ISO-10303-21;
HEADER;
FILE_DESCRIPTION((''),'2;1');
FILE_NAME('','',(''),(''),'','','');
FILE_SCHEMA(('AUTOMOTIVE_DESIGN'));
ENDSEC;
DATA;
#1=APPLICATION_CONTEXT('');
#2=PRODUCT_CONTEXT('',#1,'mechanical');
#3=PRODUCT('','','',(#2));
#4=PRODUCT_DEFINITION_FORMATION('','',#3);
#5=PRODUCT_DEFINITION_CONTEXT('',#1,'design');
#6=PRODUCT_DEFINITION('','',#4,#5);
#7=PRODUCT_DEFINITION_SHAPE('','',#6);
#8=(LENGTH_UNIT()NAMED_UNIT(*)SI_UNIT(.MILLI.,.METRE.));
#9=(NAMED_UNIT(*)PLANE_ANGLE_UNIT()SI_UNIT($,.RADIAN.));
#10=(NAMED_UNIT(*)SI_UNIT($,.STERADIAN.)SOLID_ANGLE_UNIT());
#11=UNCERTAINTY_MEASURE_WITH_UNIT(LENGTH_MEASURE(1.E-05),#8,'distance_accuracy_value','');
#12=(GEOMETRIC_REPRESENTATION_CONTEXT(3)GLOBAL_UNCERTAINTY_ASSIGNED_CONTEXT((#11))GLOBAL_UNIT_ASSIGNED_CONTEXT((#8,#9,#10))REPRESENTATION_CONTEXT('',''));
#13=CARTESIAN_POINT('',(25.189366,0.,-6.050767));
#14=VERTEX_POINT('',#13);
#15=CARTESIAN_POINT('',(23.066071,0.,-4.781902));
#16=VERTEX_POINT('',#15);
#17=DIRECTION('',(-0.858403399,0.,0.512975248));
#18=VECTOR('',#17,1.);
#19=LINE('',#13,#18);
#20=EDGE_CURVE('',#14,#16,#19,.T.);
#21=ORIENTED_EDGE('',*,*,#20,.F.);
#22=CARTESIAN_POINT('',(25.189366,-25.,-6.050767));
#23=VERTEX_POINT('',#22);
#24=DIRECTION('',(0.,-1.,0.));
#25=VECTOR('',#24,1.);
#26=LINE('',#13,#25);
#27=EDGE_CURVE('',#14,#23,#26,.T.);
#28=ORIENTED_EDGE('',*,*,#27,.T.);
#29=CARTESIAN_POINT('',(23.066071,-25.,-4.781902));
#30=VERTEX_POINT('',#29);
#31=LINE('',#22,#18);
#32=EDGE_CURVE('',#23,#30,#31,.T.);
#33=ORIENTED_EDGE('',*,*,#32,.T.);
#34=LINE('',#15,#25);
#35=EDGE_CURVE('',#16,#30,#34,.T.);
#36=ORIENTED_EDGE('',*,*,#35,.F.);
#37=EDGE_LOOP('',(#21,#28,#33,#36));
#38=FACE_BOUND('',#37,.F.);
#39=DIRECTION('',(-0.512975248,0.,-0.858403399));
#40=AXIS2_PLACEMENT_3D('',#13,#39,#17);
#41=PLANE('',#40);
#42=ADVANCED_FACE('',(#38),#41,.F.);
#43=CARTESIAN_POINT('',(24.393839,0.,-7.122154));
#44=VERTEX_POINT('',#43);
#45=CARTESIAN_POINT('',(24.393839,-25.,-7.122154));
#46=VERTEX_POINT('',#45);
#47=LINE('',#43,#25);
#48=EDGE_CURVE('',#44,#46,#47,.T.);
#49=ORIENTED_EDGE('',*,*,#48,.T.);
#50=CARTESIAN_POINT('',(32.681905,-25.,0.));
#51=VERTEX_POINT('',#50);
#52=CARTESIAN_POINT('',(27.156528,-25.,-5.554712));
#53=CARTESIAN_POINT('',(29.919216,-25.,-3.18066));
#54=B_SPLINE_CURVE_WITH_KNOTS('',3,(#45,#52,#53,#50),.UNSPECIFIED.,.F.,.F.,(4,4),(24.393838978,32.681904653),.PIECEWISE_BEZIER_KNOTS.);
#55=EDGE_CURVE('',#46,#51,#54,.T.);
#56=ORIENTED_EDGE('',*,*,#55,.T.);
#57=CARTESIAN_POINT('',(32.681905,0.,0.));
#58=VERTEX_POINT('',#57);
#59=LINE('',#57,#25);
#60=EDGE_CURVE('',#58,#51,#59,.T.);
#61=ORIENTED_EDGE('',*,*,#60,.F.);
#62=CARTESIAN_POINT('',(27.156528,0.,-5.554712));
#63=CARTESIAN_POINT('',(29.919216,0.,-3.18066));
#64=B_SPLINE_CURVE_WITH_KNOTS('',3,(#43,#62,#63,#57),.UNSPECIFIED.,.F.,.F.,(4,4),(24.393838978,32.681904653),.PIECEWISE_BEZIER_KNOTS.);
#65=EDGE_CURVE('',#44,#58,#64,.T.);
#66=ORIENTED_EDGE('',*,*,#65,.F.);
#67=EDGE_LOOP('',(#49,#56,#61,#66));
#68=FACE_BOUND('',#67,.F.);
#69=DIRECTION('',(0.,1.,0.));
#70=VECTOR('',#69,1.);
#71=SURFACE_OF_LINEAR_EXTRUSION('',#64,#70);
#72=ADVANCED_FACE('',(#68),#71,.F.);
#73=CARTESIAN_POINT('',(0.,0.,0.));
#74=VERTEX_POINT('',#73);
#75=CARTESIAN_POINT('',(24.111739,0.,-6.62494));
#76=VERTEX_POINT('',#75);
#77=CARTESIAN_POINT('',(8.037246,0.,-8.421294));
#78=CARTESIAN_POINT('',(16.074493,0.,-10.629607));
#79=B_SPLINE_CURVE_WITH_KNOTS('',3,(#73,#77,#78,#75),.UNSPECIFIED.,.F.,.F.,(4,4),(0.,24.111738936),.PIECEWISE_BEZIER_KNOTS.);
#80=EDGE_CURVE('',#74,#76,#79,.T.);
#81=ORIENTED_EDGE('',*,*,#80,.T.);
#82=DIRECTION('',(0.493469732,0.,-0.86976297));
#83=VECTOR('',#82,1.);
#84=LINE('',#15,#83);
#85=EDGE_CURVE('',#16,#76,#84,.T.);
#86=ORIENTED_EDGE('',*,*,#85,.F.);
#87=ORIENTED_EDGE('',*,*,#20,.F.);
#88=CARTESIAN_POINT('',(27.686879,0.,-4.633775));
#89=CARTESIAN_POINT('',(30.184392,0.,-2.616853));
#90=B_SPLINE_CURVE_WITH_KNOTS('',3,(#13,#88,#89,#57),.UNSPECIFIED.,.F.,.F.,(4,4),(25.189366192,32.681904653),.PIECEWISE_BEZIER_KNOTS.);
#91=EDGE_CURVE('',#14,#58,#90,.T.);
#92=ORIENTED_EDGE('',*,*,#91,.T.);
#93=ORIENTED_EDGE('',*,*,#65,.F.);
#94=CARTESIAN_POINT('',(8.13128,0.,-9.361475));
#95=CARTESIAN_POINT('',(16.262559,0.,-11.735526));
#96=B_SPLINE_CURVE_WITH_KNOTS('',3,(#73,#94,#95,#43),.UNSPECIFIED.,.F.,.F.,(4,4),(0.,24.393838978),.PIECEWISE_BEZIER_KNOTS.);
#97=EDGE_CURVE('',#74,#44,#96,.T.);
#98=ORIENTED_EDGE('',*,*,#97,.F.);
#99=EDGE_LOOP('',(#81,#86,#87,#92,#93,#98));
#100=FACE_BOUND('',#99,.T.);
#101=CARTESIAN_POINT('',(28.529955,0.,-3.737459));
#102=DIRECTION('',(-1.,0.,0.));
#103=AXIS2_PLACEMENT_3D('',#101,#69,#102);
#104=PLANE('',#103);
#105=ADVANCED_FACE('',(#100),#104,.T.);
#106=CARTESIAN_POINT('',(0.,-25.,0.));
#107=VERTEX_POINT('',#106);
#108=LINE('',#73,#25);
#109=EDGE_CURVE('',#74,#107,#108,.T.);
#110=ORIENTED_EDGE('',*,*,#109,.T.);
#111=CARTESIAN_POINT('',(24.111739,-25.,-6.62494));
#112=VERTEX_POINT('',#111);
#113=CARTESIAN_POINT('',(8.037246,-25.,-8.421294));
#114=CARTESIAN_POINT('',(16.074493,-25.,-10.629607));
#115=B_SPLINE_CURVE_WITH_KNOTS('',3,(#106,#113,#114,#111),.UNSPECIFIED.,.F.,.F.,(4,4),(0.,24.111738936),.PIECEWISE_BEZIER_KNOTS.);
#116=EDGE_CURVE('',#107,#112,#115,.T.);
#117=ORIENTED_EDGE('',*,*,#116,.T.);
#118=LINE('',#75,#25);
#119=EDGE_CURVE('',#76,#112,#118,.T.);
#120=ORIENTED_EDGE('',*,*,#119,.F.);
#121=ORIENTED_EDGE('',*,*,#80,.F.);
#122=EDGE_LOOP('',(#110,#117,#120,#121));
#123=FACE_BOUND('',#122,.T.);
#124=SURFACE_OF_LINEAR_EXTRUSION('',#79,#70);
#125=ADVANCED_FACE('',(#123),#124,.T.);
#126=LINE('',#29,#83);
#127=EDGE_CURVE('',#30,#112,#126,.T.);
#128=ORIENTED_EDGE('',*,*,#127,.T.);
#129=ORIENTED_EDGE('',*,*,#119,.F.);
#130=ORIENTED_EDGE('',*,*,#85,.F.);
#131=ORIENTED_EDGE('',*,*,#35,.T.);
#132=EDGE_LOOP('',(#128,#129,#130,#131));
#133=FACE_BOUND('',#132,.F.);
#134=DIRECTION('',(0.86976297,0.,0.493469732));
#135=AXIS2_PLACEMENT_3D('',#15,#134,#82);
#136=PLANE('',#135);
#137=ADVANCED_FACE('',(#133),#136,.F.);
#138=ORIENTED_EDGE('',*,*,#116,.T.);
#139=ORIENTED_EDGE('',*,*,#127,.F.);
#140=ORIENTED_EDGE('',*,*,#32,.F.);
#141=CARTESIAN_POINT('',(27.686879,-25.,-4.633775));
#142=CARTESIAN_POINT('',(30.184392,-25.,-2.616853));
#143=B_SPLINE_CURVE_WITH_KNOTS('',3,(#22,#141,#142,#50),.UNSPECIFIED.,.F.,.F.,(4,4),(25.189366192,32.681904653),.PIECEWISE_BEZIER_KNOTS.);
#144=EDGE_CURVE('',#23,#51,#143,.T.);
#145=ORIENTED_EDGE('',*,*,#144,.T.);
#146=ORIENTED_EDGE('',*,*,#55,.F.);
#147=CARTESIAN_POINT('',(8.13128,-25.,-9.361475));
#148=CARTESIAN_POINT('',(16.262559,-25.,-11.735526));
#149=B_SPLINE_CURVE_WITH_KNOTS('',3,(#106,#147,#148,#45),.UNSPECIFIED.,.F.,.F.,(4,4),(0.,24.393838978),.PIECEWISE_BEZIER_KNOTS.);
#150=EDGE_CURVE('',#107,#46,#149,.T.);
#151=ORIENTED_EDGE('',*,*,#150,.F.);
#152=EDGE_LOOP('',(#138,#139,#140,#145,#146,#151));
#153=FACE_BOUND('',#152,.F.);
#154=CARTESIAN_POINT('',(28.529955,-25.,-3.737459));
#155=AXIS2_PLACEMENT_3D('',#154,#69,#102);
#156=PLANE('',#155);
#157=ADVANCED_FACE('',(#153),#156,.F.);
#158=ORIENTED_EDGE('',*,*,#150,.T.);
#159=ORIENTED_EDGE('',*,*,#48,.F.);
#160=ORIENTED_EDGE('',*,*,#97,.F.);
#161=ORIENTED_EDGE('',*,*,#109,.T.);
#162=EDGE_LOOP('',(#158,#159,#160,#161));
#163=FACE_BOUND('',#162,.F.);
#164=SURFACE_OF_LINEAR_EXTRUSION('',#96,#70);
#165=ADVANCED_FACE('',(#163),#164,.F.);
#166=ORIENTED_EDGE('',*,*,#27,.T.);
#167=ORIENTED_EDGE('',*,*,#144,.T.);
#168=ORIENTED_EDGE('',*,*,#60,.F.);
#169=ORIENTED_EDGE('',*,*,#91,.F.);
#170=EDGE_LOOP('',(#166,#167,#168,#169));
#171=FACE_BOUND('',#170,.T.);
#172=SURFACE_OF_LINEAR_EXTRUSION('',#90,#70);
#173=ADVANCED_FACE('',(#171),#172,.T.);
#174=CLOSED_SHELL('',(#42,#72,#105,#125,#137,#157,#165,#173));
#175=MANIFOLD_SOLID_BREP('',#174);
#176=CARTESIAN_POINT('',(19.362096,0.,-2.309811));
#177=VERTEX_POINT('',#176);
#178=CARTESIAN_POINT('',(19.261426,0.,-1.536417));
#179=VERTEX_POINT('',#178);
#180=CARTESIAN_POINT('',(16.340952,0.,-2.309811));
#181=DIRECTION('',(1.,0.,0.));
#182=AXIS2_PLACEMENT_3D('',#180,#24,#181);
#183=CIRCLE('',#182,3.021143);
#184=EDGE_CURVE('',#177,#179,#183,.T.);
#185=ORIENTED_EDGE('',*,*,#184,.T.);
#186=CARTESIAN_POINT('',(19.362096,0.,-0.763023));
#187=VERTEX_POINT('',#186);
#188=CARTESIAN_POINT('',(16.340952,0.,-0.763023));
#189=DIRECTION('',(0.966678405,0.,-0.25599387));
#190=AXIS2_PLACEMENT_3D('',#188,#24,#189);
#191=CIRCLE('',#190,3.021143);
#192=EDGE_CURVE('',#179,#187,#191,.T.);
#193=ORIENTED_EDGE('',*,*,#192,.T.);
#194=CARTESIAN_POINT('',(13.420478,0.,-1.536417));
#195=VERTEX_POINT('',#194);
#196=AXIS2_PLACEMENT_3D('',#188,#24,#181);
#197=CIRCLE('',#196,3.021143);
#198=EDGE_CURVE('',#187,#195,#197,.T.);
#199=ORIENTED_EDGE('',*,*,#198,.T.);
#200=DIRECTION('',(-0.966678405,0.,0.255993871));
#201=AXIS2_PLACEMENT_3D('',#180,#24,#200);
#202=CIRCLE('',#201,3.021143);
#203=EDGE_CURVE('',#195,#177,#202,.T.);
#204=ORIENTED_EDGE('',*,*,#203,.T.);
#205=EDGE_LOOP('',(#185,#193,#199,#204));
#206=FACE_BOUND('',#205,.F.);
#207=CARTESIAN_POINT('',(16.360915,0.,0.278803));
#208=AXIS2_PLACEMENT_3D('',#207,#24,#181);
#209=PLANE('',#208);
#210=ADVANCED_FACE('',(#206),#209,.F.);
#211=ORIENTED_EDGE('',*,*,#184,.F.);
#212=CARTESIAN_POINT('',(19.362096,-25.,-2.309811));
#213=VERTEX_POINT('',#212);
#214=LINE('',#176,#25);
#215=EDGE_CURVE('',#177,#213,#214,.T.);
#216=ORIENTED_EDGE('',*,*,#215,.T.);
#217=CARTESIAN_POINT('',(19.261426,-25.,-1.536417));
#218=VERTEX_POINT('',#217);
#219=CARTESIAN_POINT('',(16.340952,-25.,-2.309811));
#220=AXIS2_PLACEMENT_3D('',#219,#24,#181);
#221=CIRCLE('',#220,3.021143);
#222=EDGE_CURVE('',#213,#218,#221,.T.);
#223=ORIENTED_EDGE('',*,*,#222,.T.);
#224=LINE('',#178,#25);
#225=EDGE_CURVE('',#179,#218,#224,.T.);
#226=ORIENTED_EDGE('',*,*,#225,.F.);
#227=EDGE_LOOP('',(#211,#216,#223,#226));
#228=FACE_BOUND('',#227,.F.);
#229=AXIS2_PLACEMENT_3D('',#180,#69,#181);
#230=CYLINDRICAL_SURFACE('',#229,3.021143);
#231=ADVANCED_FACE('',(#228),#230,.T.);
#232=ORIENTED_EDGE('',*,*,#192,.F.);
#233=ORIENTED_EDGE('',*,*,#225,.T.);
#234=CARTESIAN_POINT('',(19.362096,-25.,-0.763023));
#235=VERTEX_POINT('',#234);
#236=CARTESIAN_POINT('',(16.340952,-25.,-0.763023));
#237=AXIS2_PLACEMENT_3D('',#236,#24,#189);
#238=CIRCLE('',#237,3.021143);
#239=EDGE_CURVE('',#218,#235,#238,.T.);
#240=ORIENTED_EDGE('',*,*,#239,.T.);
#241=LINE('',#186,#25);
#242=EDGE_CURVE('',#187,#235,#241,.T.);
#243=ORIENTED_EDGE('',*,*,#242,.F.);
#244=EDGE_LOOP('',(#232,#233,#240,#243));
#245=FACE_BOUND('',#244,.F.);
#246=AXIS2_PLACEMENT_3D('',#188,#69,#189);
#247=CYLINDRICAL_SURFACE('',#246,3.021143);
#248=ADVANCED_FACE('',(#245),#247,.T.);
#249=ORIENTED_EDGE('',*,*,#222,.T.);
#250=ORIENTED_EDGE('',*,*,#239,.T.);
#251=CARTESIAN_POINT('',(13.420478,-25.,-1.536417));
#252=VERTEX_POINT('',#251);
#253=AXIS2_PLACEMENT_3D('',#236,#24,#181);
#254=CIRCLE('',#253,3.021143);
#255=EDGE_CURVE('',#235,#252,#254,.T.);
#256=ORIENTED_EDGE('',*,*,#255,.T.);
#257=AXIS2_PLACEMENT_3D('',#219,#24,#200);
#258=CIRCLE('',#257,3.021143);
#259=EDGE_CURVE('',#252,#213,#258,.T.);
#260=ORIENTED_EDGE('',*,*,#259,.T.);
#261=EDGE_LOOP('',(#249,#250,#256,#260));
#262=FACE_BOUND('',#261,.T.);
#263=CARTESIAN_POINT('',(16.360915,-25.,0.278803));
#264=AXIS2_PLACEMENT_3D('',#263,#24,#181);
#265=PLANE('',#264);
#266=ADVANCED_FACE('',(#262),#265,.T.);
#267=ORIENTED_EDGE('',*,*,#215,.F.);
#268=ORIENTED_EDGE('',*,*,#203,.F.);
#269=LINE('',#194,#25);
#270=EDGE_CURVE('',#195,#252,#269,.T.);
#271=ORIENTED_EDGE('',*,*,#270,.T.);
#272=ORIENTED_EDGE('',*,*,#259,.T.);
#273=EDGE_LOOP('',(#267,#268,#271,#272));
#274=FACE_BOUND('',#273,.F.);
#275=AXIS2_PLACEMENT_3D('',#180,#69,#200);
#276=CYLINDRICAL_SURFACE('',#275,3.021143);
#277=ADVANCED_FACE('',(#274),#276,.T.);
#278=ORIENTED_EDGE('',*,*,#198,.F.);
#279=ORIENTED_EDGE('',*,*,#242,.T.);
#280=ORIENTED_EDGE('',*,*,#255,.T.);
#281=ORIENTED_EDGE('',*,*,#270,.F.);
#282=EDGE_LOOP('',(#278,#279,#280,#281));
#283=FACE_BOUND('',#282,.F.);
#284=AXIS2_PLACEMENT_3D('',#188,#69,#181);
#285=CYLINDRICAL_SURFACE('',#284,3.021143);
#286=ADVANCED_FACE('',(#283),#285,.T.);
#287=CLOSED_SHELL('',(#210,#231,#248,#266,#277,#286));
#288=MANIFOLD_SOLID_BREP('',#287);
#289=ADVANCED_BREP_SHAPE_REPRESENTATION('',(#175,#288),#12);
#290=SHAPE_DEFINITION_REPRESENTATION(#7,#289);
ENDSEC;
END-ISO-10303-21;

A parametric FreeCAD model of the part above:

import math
import FreeCAD as App
import Part
import Sketcher

V = App.Vector

doc = App.newDocument("Part")
body = doc.addObject("PartDesign::Body", "Body")

sketch1 = body.newObject("Sketcher::SketchObject", "Sketch")
sketch1.AttachmentSupport = (doc.getObject("XZ_Plane"), [""])
sketch1.MapMode = "FlatFace"
sketch1.addGeometry([
    Part.BSplineCurve([V(25.189366, -6.050767, 0), V(27.686879, -4.633775, 0), V(30.184392, -2.616853, 0), V(32.681905, 0, 0)], [4, 4], [25.189366192, 32.681904653], False, 3, [1, 1, 1, 1], False),
    Part.LineSegment(V(25.189366, -6.050767, 0), V(23.066071, -4.781902, 0)),
    Part.LineSegment(V(23.066071, -4.781902, 0), V(24.111739, -6.62494, 0)),
    Part.BSplineCurve([V(0, 0, 0), V(8.037246, -8.421294, 0), V(16.074493, -10.629607, 0), V(24.111739, -6.62494, 0)], [4, 4], [0, 24.111738936], False, 3, [1, 1, 1, 1], False),
    Part.BSplineCurve([V(0, 0, 0), V(8.13128, -9.361475, 0), V(16.262559, -11.735526, 0), V(24.393839, -7.122154, 0)], [4, 4], [0, 24.393838978], False, 3, [1, 1, 1, 1], False),
    Part.BSplineCurve([V(24.393839, -7.122154, 0), V(27.156528, -5.554712, 0), V(29.919216, -3.18066, 0), V(32.681905, 0, 0)], [4, 4], [24.393838978, 32.681904653], False, 3, [1, 1, 1, 1], False),
], False)
sketch1.addConstraint([
    Sketcher.Constraint("Block", 0),
    Sketcher.Constraint("Block", 3),
    Sketcher.Constraint("Block", 4),
    Sketcher.Constraint("Block", 5),
    Sketcher.Constraint("Coincident", 0, 1, 1, 1),
    Sketcher.Constraint("Coincident", 1, 2, 2, 1),
    Sketcher.Constraint("Coincident", 2, 2, 3, 2),
    Sketcher.Constraint("DistanceY", 1, 2, -1, 1, 4.781902),
    Sketcher.Constraint("Distance", 1, 2.47354),
])
pad1 = body.newObject("PartDesign::Pad", "Pad")
pad1.Profile = sketch1
pad1.Length = 25
body2 = doc.addObject("PartDesign::Body", "Body001")

sketch2 = body2.newObject("Sketcher::SketchObject", "Sketch001")
sketch2.AttachmentSupport = (doc.getObject("XZ_Plane001"), [""])
sketch2.MapMode = "FlatFace"
sketch2.addGeometry([
    Part.ArcOfCircle(Part.Circle(V(16.3, -0.8, 0), V(0, 0, 1), 3), math.radians(-14.83), math.radians(0)),
    Part.ArcOfCircle(Part.Circle(V(16.3, -0.8, 0), V(0, 0, 1), 3), math.radians(0), math.radians(195)),
    Part.ArcOfCircle(Part.Circle(V(16.3, -2.3, 0), V(0, 0, 1), 3), math.radians(165), math.radians(360)),
    Part.ArcOfCircle(Part.Circle(V(16.3, -2.3, 0), V(0, 0, 1), 3), math.radians(0), math.radians(14.83)),
], False)
sketch2.addConstraint([
    Sketcher.Constraint("Tangent", 0, 2, 1, 1),
    Sketcher.Constraint("Coincident", 1, 2, 2, 1),
    Sketcher.Constraint("Tangent", 2, 2, 3, 1),
    Sketcher.Constraint("Coincident", 3, 2, 0, 1),
    Sketcher.Constraint("Equal", 0, 1),
    Sketcher.Constraint("Equal", 1, 2),
    Sketcher.Constraint("Equal", 2, 3),
    Sketcher.Constraint("Horizontal", 1, 3, 0, 2),
    Sketcher.Constraint("Horizontal", 3, 3, 2, 2),
    Sketcher.Constraint("Horizontal", 1, 2, 3, 2),
    Sketcher.Constraint("Radius", 0, 3.021143),
    Sketcher.Constraint("DistanceY", 2, 3, -1, 1, 2.309811),
    Sketcher.Constraint("DistanceX", -1, 1, 1, 2, 13.420478),
    Sketcher.Constraint("DistanceY", 2, 3, 1, 3, 1.546788),
])
pad2 = body2.newObject("PartDesign::Pad", "Pad001")
pad2.Profile = sketch2
pad2.Length = 25

doc.recompute()
